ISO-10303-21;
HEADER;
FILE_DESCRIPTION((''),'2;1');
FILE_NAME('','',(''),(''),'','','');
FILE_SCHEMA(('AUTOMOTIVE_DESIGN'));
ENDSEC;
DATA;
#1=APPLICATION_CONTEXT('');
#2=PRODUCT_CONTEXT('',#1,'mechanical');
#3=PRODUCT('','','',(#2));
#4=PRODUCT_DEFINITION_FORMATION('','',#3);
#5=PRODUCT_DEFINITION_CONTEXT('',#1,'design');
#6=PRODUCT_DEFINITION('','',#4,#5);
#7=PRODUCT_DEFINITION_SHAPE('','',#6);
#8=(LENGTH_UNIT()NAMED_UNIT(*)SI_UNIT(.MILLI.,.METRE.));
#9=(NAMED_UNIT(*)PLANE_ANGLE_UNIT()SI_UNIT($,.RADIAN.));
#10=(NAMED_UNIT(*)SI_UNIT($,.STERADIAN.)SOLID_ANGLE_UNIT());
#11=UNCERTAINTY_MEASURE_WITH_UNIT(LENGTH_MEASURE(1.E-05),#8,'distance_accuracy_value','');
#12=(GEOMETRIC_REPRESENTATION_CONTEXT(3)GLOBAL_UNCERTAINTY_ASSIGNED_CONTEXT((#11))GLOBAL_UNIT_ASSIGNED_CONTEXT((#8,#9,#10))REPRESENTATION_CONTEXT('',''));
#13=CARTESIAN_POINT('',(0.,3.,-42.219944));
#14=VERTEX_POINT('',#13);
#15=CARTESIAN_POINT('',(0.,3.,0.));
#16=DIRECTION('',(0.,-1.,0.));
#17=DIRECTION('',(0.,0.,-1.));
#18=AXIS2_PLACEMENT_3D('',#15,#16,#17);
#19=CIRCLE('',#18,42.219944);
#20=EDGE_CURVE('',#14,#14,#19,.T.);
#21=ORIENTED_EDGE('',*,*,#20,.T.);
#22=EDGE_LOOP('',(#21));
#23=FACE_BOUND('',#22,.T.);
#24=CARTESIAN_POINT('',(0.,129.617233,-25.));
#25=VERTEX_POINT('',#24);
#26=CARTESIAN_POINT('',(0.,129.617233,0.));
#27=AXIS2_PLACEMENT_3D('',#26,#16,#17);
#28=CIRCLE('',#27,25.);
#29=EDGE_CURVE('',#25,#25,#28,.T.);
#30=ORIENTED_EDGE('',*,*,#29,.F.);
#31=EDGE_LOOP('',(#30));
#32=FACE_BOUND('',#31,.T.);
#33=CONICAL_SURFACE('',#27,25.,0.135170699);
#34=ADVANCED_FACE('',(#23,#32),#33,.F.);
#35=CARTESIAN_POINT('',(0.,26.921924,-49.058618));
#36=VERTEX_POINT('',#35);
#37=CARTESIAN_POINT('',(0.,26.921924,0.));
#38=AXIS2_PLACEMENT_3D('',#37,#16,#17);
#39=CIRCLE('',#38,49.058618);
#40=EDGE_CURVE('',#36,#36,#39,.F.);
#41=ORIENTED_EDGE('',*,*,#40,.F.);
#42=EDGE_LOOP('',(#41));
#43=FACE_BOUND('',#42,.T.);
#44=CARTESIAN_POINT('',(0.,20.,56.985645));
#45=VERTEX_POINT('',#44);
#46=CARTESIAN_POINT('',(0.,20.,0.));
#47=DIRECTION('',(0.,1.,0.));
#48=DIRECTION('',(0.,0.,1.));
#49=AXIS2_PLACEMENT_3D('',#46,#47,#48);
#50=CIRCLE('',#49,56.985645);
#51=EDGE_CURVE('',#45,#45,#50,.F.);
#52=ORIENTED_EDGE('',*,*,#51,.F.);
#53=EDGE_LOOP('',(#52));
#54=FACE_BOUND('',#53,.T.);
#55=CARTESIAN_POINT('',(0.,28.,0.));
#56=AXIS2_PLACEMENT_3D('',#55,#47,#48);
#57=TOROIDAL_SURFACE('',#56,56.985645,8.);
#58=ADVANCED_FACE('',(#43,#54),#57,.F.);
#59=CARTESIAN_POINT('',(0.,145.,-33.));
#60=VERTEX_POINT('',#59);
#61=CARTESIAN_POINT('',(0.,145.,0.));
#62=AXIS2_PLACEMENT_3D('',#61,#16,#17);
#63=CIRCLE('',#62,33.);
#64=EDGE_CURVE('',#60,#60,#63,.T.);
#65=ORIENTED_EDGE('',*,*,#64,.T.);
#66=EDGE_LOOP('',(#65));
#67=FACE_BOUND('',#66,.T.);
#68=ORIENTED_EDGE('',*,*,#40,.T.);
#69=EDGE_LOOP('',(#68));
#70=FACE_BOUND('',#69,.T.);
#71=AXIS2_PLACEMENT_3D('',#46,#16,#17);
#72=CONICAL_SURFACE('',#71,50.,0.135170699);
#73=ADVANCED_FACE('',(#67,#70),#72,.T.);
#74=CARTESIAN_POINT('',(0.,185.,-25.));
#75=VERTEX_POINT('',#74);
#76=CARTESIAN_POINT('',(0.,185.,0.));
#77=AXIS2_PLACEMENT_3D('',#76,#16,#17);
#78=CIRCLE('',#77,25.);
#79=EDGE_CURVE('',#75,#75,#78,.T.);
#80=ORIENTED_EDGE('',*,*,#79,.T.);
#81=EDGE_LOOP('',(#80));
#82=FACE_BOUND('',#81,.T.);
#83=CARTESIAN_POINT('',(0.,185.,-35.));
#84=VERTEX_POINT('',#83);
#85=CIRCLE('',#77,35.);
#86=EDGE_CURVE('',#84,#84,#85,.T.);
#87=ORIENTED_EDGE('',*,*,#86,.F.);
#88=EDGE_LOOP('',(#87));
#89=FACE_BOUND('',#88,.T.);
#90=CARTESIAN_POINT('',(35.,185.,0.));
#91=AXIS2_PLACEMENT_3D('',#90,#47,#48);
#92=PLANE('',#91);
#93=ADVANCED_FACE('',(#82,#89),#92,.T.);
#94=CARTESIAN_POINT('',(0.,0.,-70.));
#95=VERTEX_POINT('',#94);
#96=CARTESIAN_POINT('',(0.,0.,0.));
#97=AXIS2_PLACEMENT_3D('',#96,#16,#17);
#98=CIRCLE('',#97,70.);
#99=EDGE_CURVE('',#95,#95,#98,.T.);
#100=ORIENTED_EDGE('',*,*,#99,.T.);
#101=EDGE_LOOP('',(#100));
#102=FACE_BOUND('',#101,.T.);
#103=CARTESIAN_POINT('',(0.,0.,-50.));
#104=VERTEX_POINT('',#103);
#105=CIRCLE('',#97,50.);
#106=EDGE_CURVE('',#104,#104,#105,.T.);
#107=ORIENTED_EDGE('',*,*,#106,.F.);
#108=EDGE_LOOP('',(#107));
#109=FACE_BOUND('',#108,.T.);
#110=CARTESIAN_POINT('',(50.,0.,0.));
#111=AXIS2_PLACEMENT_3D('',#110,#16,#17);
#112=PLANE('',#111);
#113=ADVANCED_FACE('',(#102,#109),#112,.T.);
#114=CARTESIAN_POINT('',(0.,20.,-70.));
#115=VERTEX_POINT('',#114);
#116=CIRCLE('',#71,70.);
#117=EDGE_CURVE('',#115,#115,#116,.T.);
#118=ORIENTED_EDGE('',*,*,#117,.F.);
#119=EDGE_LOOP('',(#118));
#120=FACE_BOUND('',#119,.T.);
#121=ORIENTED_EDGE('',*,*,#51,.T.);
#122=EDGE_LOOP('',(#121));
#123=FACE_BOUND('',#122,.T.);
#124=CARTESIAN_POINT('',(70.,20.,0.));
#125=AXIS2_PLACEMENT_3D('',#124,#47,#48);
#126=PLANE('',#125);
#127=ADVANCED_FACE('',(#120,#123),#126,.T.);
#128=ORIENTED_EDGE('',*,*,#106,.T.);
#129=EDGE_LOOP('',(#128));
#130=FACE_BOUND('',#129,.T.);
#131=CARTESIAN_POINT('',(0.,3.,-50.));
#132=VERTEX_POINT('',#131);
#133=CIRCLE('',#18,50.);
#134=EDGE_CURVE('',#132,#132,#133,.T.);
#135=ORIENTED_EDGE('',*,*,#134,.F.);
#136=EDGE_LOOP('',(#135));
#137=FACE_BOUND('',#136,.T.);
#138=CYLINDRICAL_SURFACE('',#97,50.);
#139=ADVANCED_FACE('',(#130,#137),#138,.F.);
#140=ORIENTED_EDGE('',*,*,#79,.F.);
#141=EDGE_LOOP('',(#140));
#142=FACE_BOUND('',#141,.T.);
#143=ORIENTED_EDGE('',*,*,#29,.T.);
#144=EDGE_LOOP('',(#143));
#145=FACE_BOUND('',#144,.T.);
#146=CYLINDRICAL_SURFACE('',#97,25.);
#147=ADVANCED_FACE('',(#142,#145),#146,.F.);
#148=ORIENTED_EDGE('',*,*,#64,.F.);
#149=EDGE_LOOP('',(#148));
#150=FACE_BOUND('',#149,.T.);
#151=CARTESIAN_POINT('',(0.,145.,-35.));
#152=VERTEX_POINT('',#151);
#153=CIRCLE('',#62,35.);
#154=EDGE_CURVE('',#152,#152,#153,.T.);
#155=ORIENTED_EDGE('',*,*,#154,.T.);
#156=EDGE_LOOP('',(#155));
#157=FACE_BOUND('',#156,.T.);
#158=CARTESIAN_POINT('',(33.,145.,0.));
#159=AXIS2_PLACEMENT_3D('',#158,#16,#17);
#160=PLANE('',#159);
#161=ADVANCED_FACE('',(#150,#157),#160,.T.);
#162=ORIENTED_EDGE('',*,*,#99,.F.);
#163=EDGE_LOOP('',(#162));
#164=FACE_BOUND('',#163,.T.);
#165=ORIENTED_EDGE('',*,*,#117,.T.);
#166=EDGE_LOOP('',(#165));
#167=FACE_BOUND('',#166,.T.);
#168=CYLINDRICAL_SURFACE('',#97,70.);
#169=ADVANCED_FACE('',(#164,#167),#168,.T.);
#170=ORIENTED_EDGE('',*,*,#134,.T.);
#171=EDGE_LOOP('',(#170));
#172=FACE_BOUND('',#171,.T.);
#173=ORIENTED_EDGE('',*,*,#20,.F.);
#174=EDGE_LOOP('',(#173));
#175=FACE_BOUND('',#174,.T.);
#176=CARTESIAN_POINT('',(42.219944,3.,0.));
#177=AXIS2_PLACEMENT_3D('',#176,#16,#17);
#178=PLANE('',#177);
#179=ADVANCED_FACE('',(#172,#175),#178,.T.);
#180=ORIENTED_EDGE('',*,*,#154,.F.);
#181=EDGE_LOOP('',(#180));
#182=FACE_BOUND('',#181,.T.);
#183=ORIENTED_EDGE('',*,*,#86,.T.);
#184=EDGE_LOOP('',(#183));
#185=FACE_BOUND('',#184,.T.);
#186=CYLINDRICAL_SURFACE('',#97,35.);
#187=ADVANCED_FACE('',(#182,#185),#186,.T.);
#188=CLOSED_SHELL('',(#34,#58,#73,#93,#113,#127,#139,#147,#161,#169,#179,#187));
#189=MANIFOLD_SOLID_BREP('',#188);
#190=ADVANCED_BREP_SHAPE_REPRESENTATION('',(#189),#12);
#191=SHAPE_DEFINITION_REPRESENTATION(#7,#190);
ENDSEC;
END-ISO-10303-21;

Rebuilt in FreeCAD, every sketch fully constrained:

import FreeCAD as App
import Part
import Sketcher
Q = App.Units.Quantity


def edges_at(feature, points):
    """Names of the edges that pass closest to the given points."""
    edges = feature.Shape.Edges
    near = lambda p: min(range(len(edges)), key=lambda i: edges[i].distToShape(Part.Vertex(*p))[0])
    return sorted({f"Edge{near(p) + 1}" for p in points})


def add_polygon(sketch, points):
    """Adds a closed chain of lines whose ends are joined by coincident constraints."""
    first, n = sketch.GeometryCount, len(points)
    for a, b in zip(points, points[1:] + points[:1]):
        sketch.addGeometry(Part.LineSegment(App.Vector(*a, 0), App.Vector(*b, 0)), False)
    for i in range(n):
        sketch.addConstraint(Sketcher.Constraint("Coincident", first + i, 2, first + (i + 1) % n, 1))

doc = App.newDocument("Part")
body = doc.addObject("PartDesign::Body", "Body")

# Sketch on XY plane
sketch1 = doc.addObject("Sketcher::SketchObject", "Sketch")
body.addObject(sketch1)
sketch1.AttachmentSupport = (doc.XY_Plane, [""])
sketch1.MapMode = "FlatFace"
add_polygon(sketch1, [(50, 0), (70, 0), (70, 20), (50, 20), (33, 145), (35, 145), (35, 185), (25, 185), (25, 129.6), (42.2, 3), (50, 3)])  # lines 0-10
sketch1.addConstraint(Sketcher.Constraint("Horizontal", 0))
sketch1.addConstraint(Sketcher.Constraint("Vertical", 1))
sketch1.addConstraint(Sketcher.Constraint("Horizontal", 2))
sketch1.addConstraint(Sketcher.Constraint("Horizontal", 4))
sketch1.addConstraint(Sketcher.Constraint("Vertical", 5))
sketch1.addConstraint(Sketcher.Constraint("Horizontal", 6))
sketch1.addConstraint(Sketcher.Constraint("Vertical", 7))
sketch1.addConstraint(Sketcher.Constraint("Horizontal", 9))
sketch1.addConstraint(Sketcher.Constraint("Vertical", 10))
sketch1.addConstraint(Sketcher.Constraint("PointOnObject", 0, 2, -1))
sketch1.addConstraint(Sketcher.Constraint("Parallel", 3, 8))
sketch1.addConstraint(Sketcher.Constraint("Vertical", 2, 2, 9, 2))
sketch1.addConstraint(Sketcher.Constraint("Equal", 2, 1))
sketch1.addConstraint(Sketcher.Constraint("DistanceX", 0, 1, 0, 2, Q("20 mm")))
sketch1.addConstraint(Sketcher.Constraint("DistanceX", 4, 1, 4, 2, Q("2 mm")))
sketch1.addConstraint(Sketcher.Constraint("DistanceX", 6, 2, 6, 1, Q("10 mm")))
sketch1.addConstraint(Sketcher.Constraint("DistanceY", 5, 1, 5, 2, Q("40 mm")))
sketch1.addConstraint(Sketcher.Constraint("DistanceY", 10, 2, 10, 1, Q("3 mm")))
sketch1.addConstraint(Sketcher.Constraint("DistanceX", -1, 1, 0, 2, Q("70 mm")))
sketch1.addConstraint(Sketcher.Constraint("DistanceX", -1, 1, 3, 2, Q("33 mm")))
sketch1.addConstraint(Sketcher.Constraint("DistanceY", -1, 1, 3, 2, Q("145 mm")))
sketch1.addConstraint(Sketcher.Constraint("DistanceX", 9, 1, 9, 2, Q("7.780056 mm")))
revolution = doc.addObject("PartDesign::Revolution", "Revolution")
body.addObject(revolution)
revolution.Profile = sketch1
revolution.ReferenceAxis = (sketch1, ["V_Axis"])
revolution.Angle = 360
doc.recompute()

fillet = doc.addObject("PartDesign::Fillet", "Fillet")
body.addObject(fillet)
fillet.Base = (revolution, edges_at(revolution, [(-50, 20, 0)]))
fillet.Radius = 8

doc.recompute()
